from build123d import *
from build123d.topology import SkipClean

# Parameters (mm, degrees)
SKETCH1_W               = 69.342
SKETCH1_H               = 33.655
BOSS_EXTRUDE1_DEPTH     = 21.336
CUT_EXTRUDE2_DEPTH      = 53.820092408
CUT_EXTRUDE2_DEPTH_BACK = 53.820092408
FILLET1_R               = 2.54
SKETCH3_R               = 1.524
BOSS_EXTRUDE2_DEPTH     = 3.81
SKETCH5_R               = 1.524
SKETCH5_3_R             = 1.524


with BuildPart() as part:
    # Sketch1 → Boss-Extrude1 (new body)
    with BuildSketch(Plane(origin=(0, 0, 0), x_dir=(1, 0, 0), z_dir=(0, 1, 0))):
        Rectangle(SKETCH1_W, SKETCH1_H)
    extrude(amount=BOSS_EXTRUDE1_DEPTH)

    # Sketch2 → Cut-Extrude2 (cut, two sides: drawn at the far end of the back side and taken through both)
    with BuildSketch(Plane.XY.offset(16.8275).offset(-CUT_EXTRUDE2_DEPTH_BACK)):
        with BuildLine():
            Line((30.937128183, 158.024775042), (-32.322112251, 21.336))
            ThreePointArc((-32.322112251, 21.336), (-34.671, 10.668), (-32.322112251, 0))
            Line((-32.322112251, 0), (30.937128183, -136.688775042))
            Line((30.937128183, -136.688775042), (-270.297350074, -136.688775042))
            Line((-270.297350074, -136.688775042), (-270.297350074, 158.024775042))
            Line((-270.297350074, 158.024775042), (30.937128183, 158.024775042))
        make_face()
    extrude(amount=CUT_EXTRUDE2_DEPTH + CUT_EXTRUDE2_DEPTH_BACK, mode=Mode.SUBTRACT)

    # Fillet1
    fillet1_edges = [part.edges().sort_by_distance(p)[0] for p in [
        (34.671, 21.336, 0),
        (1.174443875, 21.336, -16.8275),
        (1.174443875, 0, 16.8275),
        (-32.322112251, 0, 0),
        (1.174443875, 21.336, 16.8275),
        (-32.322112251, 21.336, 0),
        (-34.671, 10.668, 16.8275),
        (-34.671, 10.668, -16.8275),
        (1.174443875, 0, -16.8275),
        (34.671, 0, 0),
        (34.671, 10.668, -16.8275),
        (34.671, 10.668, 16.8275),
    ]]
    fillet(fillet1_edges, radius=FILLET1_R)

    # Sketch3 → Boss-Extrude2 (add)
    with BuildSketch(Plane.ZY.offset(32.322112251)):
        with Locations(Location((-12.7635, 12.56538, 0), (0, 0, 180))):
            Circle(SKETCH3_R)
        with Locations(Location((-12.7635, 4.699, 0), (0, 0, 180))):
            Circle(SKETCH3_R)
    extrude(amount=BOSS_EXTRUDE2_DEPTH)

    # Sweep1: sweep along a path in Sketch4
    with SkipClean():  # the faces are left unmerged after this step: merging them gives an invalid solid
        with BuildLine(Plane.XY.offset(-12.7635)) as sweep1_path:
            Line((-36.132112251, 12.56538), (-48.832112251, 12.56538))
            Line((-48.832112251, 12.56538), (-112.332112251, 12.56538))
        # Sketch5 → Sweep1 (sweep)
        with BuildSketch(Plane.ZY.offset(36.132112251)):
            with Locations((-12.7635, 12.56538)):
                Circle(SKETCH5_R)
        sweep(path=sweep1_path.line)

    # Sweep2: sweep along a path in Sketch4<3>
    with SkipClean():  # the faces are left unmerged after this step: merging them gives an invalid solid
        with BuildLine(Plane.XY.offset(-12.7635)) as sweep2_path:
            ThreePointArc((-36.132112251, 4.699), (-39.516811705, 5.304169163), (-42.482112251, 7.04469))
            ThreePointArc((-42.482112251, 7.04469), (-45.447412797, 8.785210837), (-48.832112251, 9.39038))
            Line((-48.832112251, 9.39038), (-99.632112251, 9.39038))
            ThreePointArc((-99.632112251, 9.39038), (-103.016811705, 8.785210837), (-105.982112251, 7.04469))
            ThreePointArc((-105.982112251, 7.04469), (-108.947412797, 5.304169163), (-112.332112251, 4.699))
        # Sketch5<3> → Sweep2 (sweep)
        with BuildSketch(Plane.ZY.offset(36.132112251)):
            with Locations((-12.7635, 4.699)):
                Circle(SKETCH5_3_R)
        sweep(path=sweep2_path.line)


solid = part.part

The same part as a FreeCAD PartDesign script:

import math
import FreeCAD as App
import Part
import Sketcher

V = App.Vector
Q = App.Units.Quantity

doc = App.newDocument("Part")
body = doc.addObject("PartDesign::Body", "Body")

# Sketch on XZ plane
sketch1 = doc.addObject("Sketcher::SketchObject", "Sketch")
body.addObject(sketch1)
sketch1.AttachmentSupport = (doc.XZ_Plane, [""])
sketch1.MapMode = "FlatFace"
sketch1.addGeometry(Part.LineSegment(V(-35, -17, 0), V(-35, 17, 0)), False)
sketch1.addGeometry(Part.LineSegment(V(-35, 17, 0), V(35, 17, 0)), False)
sketch1.addGeometry(Part.LineSegment(V(35, 17, 0), V(35, -17, 0)), False)
sketch1.addGeometry(Part.LineSegment(V(35, -17, 0), V(-35, -17, 0)), False)
sketch1.addConstraint(Sketcher.Constraint("Coincident", 0, 2, 1, 1))
sketch1.addConstraint(Sketcher.Constraint("Coincident", 1, 2, 2, 1))
sketch1.addConstraint(Sketcher.Constraint("Coincident", 2, 2, 3, 1))
sketch1.addConstraint(Sketcher.Constraint("Coincident", 3, 2, 0, 1))
sketch1.addConstraint(Sketcher.Constraint("Vertical", 0))
sketch1.addConstraint(Sketcher.Constraint("Horizontal", 1))
sketch1.addConstraint(Sketcher.Constraint("Vertical", 2))
sketch1.addConstraint(Sketcher.Constraint("Horizontal", 3))
sketch1.addConstraint(Sketcher.Constraint("Symmetric", 0, 2, 2, 2, -1, 1))
sketch1.addConstraint(Sketcher.Constraint("DistanceX", 1, 1, 1, 2, Q("2.73 in")))
sketch1.addConstraint(Sketcher.Constraint("DistanceY", 0, 1, 0, 2, Q("1.325 in")))
pad1 = doc.addObject("PartDesign::Pad", "Pad")
body.addObject(pad1)
pad1.Profile = sketch1
pad1.Length = Q("0.84 in")
pad1.Reversed = True

# Sketch on XY plane
sketch2 = doc.addObject("Sketcher::SketchObject", "Sketch001")
body.addObject(sketch2)
sketch2.AttachmentSupport = (doc.XY_Plane, [""])
sketch2.MapMode = "FlatFace"
sketch2.AttachmentOffset = App.Placement(V(0, 0, 0.6625 * 25.4), App.Rotation())
sketch2.addGeometry(Part.LineSegment(V(-32, 21, 0), V(31, 158, 0)), False)
sketch2.addGeometry(Part.LineSegment(V(31, 158, 0), V(-270, 158, 0)), False)
sketch2.addGeometry(Part.LineSegment(V(-270, 158, 0), V(-270, -137, 0)), False)
sketch2.addGeometry(Part.LineSegment(V(-270, -137, 0), V(31, -137, 0)), False)
sketch2.addGeometry(Part.LineSegment(V(31, -137, 0), V(-32, 0, 0)), False)
sketch2.addGeometry(Part.ArcOfCircle(Part.Circle(V(-9, 11, 0), V(0, 0, 1), 25), math.radians(155), math.radians(205)), False)
sketch2.addConstraint(Sketcher.Constraint("Coincident", 0, 2, 1, 1))
sketch2.addConstraint(Sketcher.Constraint("Coincident", 1, 2, 2, 1))
sketch2.addConstraint(Sketcher.Constraint("Coincident", 2, 2, 3, 1))
sketch2.addConstraint(Sketcher.Constraint("Coincident", 3, 2, 4, 1))
sketch2.addConstraint(Sketcher.Constraint("Tangent", 4, 2, 5, 2))
sketch2.addConstraint(Sketcher.Constraint("Tangent", 5, 1, 0, 1))
sketch2.addConstraint(Sketcher.Constraint("Horizontal", 1))
sketch2.addConstraint(Sketcher.Constraint("Vertical", 2))
sketch2.addConstraint(Sketcher.Constraint("Horizontal", 3))
sketch2.addConstraint(Sketcher.Constraint("PointOnObject", 4, 2, -1))
sketch2.addConstraint(Sketcher.Constraint("Vertical", 0, 2, 3, 2))
sketch2.addConstraint(Sketcher.Constraint("Vertical", 4, 2, 5, 1))
sketch2.addConstraint(Sketcher.Constraint("Radius", 5, Q("1 in")))
sketch2.addConstraint(Sketcher.Constraint("DistanceY", -1, 1, 5, 3, Q("0.42 in")))
sketch2.addConstraint(Sketcher.Constraint("DistanceX", 5, 3, -1, 1, Q("0.365 in")))
sketch2.addConstraint(Sketcher.Constraint("DistanceX", 1, 2, 1, 1, Q("301.234478 mm")))
sketch2.addConstraint(Sketcher.Constraint("DistanceY", 2, 2, 2, 1, Q("294.71355 mm")))
pocket1 = doc.addObject("PartDesign::Pocket", "Pocket")
body.addObject(pocket1)
pocket1.Profile = sketch2
pocket1.Type = "ThroughAll"
pocket1.Midplane = True
doc.recompute()

fillet = doc.addObject("PartDesign::Fillet", "Fillet")
body.addObject(fillet)
fillet.Base = (pocket1, ["Edge1"])
fillet.UseAllEdges = True
fillet.Radius = Q("0.1 in")

# Sketch on YZ plane
sketch3 = doc.addObject("Sketcher::SketchObject", "Sketch002")
body.addObject(sketch3)
sketch3.AttachmentSupport = (doc.YZ_Plane, [""])
sketch3.MapMode = "FlatFace"
sketch3.AttachmentOffset = App.Placement(V(0, 0, -32.322112), App.Rotation())
sketch3.addGeometry(Part.Circle(V(12.6, -12.8, 0), V(0, 0, 1), 1.5), False)
sketch3.addGeometry(Part.Circle(V(4.7, -12.8, 0), V(0, 0, 1), 1.5), False)
sketch3.addConstraint(Sketcher.Constraint("Equal", 0, 1))
sketch3.addConstraint(Sketcher.Constraint("Horizontal", 0, 3, 1, 3))
sketch3.addConstraint(Sketcher.Constraint("Diameter", 0, Q("0.12 in")))
sketch3.addConstraint(Sketcher.Constraint("DistanceX", -1, 1, 1, 3, Q("0.185 in")))
sketch3.addConstraint(Sketcher.Constraint("DistanceX", -1, 1, 0, 3, Q("0.4947 in")))
sketch3.addConstraint(Sketcher.Constraint("DistanceY", 0, 3, -1, 1, Q("0.5025 in")))
pad2 = doc.addObject("PartDesign::Pad", "Pad001")
body.addObject(pad2)
pad2.Profile = sketch3
pad2.Length = Q("0.15 in")
pad2.Reversed = True

# Sketch on YZ plane
sketch4 = doc.addObject("Sketcher::SketchObject", "Sketch003")
body.addObject(sketch4)
sketch4.AttachmentSupport = (doc.YZ_Plane, [""])
sketch4.MapMode = "FlatFace"
sketch4.AttachmentOffset = App.Placement(V(0, 0, -36.132112), App.Rotation())
sketch4.addGeometry(Part.Circle(V(12.6, -12.8, 0), V(0, 0, 1), 1.5), False)
sketch4.addConstraint(Sketcher.Constraint("Diameter", 0, Q("0.12 in")))
sketch4.addConstraint(Sketcher.Constraint("DistanceX", -1, 1, 0, 3, Q("0.4947 in")))
sketch4.addConstraint(Sketcher.Constraint("DistanceY", 0, 3, -1, 1, Q("0.5025 in")))

# Sketch on XZ plane
sketch5 = doc.addObject("Sketcher::SketchObject", "Sketch004")
body.addObject(sketch5)
sketch5.AttachmentSupport = (doc.XZ_Plane, [""])
sketch5.MapMode = "FlatFace"
sketch5.AttachmentOffset = App.Placement(V(0, 0, -0.4947 * 25.4), App.Rotation())
sketch5.addGeometry(Part.LineSegment(V(-36, -13, 0), V(-49, -13, 0)), False)
sketch5.addGeometry(Part.LineSegment(V(-49, -13, 0), V(-112, -13, 0)), False)
sketch5.addConstraint(Sketcher.Constraint("Coincident", 0, 2, 1, 1))
sketch5.addConstraint(Sketcher.Constraint("Horizontal", 0))
sketch5.addConstraint(Sketcher.Constraint("Horizontal", 1))
sketch5.addConstraint(Sketcher.Constraint("DistanceX", 0, 2, 0, 1, Q("0.5 in")))
sketch5.addConstraint(Sketcher.Constraint("DistanceX", 1, 2, 1, 1, Q("2.5 in")))
sketch5.addConstraint(Sketcher.Constraint("DistanceY", 0, 1, -1, 1, Q("0.5025 in")))
sketch5.addConstraint(Sketcher.Constraint("DistanceX", 0, 1, -1, 1, Q("36.132112 mm")))
doc.recompute()

additivepipe = doc.addObject("PartDesign::AdditivePipe", "AdditivePipe")
body.addObject(additivepipe)
additivepipe.Profile = sketch4
additivepipe.Spine = (sketch5, ["Edge1", "Edge2"])

# Sketch on YZ plane
sketch6 = doc.addObject("Sketcher::SketchObject", "Sketch005")
body.addObject(sketch6)
sketch6.AttachmentSupport = (doc.YZ_Plane, [""])
sketch6.MapMode = "FlatFace"
sketch6.AttachmentOffset = App.Placement(V(0, 0, -36.132112), App.Rotation())
sketch6.addGeometry(Part.Circle(V(4.7, -12.8, 0), V(0, 0, 1), 1.5), False)
sketch6.addConstraint(Sketcher.Constraint("Diameter", 0, Q("0.12 in")))
sketch6.addConstraint(Sketcher.Constraint("DistanceX", -1, 1, 0, 3, Q("0.185 in")))
sketch6.addConstraint(Sketcher.Constraint("DistanceY", 0, 3, -1, 1, Q("0.5025 in")))

# Sketch on XY plane
sketch7 = doc.addObject("Sketcher::SketchObject", "Sketch006")
body.addObject(sketch7)
sketch7.AttachmentSupport = (doc.XY_Plane, [""])
sketch7.MapMode = "FlatFace"
sketch7.AttachmentOffset = App.Placement(V(0, 0, -0.5025 * 25.4), App.Rotation())
sketch7.addGeometry(Part.ArcOfCircle(Part.Circle(V(-36, 14, 0), V(0, 0, 1), 10), math.radians(-131), math.radians(-90)), False)
sketch7.addGeometry(Part.ArcOfCircle(Part.Circle(V(-49, 0, 0), V(0, 0, 1), 10), math.radians(49), math.radians(90)), False)
sketch7.addGeometry(Part.LineSegment(V(-49, 9, 0), V(-100, 9, 0)), False)
sketch7.addGeometry(Part.ArcOfCircle(Part.Circle(V(-100, 0, 0), V(0, 0, 1), 10), math.radians(90), math.radians(131)), False)
sketch7.addGeometry(Part.ArcOfCircle(Part.Circle(V(-112, 14, 0), V(0, 0, 1), 10), math.radians(-90), math.radians(-49)), False)
sketch7.addConstraint(Sketcher.Constraint("Tangent", 0, 1, 1, 1))
sketch7.addConstraint(Sketcher.Constraint("Tangent", 1, 2, 2, 1))
sketch7.addConstraint(Sketcher.Constraint("Tangent", 2, 2, 3, 1))
sketch7.addConstraint(Sketcher.Constraint("Tangent", 3, 2, 4, 2))
sketch7.addConstraint(Sketcher.Constraint("Horizontal", 2))
sketch7.addConstraint(Sketcher.Constraint("Equal", 0, 1))
sketch7.addConstraint(Sketcher.Constraint("Equal", 1, 3))
sketch7.addConstraint(Sketcher.Constraint("Equal", 3, 4))
sketch7.addConstraint(Sketcher.Constraint("Horizontal", 0, 3, 4, 3))
sketch7.addConstraint(Sketcher.Constraint("DistanceX", 2, 2, 2, 1, Q("2 in")))
sketch7.addConstraint(Sketcher.Constraint("DistanceX", 4, 3, 0, 3, Q("3 in")))
sketch7.addConstraint(Sketcher.Constraint("DistanceX", 4, 3, 0, 2, Q("3 in")))
sketch7.addConstraint(Sketcher.Constraint("DistanceX", 4, 1, 2, 2, Q("0.5 in")))
sketch7.addConstraint(Sketcher.Constraint("DistanceY", -1, 1, 0, 2, Q("0.185 in")))
sketch7.addConstraint(Sketcher.Constraint("DistanceY", -1, 1, 1, 2, Q("0.3697 in")))
sketch7.addConstraint(Sketcher.Constraint("DistanceX", 0, 3, -1, 1, Q("36.132112 mm")))
doc.recompute()

additivepipe2 = doc.addObject("PartDesign::AdditivePipe", "AdditivePipe001")
body.addObject(additivepipe2)
additivepipe2.Profile = sketch6
additivepipe2.Spine = (sketch7, ["Edge1", "Edge2", "Edge3", "Edge4", "Edge5"])

doc.recompute()
